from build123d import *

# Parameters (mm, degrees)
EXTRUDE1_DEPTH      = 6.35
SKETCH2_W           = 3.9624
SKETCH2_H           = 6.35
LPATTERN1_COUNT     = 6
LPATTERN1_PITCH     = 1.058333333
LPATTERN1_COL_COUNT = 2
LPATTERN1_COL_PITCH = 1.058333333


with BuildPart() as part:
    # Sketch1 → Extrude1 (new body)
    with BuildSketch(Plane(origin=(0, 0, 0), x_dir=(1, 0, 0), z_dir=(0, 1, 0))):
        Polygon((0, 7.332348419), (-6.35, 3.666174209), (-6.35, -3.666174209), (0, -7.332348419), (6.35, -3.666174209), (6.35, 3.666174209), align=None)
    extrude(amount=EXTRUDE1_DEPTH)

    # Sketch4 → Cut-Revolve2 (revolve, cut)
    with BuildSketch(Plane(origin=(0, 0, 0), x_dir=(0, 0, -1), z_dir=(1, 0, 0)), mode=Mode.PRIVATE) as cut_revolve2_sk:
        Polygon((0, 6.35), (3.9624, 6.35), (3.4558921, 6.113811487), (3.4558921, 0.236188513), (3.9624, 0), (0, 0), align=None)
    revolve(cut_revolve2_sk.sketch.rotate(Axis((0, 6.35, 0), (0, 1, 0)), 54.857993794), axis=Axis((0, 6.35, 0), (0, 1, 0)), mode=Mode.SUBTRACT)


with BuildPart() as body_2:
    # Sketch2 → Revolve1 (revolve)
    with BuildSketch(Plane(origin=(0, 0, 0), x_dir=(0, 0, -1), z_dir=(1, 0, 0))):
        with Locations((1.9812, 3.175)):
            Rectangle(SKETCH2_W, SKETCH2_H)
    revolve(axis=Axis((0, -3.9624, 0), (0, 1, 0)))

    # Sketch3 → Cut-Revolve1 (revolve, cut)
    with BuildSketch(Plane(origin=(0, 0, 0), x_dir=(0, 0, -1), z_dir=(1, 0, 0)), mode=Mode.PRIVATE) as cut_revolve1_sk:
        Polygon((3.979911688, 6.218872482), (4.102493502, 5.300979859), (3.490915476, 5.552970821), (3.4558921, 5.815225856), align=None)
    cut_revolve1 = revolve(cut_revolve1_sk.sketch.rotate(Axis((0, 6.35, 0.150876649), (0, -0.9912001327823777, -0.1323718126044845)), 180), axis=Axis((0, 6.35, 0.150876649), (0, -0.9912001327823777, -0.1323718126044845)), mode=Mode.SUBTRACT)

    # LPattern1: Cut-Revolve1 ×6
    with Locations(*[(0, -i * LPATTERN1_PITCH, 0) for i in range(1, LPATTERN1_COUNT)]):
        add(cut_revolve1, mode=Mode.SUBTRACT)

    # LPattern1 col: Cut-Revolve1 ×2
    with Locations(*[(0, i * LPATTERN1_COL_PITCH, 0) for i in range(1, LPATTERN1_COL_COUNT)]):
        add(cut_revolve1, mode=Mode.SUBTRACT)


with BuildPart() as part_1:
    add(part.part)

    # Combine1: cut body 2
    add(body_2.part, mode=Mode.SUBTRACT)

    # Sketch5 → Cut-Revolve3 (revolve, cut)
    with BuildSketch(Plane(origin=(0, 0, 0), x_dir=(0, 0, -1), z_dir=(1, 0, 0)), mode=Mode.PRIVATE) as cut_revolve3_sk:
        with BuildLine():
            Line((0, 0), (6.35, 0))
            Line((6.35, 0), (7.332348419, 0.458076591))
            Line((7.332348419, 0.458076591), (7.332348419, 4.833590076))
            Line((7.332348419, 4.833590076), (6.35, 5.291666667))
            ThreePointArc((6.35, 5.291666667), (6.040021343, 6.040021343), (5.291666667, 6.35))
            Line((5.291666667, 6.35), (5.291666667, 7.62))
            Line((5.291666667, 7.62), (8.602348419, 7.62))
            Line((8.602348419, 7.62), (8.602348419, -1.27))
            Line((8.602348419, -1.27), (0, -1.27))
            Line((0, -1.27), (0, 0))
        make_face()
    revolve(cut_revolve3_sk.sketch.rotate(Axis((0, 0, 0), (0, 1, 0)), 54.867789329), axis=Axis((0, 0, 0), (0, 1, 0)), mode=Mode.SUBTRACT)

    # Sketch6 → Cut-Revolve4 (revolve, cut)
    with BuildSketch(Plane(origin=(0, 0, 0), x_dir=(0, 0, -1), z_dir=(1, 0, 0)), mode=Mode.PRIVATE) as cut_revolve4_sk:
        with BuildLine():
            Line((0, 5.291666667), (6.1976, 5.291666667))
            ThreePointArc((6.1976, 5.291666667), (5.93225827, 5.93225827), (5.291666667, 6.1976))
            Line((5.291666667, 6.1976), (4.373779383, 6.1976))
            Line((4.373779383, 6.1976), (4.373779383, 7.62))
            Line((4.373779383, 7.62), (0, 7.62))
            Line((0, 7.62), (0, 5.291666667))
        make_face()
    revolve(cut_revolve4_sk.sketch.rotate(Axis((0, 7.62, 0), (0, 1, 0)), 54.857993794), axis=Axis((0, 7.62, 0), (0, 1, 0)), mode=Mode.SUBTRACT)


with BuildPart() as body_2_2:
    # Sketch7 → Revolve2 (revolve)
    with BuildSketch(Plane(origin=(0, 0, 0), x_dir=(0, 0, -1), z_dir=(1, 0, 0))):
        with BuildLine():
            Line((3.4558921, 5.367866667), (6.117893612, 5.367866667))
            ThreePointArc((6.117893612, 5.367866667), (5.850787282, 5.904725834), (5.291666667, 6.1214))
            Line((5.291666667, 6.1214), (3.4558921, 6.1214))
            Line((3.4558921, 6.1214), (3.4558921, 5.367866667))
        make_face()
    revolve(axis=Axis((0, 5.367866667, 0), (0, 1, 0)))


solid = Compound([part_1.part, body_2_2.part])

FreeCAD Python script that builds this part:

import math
import FreeCAD as App
import Part
import Sketcher
Q = App.Units.Quantity


def add_polygon(sketch, points):
    """Adds a closed chain of lines whose ends are joined by coincident constraints."""
    first, n = sketch.GeometryCount, len(points)
    for a, b in zip(points, points[1:] + points[:1]):
        sketch.addGeometry(Part.LineSegment(App.Vector(*a, 0), App.Vector(*b, 0)), False)
    for i in range(n):
        sketch.addConstraint(Sketcher.Constraint("Coincident", first + i, 2, first + (i + 1) % n, 1))

doc = App.newDocument("Part")
body = doc.addObject("PartDesign::Body", "Body")

# Sketch on XZ plane
sketch1 = body.newObject("Sketcher::SketchObject", "Sketch")
sketch1.AttachmentSupport = (doc.getObject("XZ_Plane"), [""])
sketch1.MapMode = "FlatFace"
add_polygon(sketch1, [(0, -7.332348), (-6.35, -3.666174), (-6.35, 3.666174), (0, 7.332348), (6.35, 3.666174), (6.35, -3.666174)])  # lines 0-5
sketch1.addConstraint(Sketcher.Constraint("Vertical", 1))
sketch1.addConstraint(Sketcher.Constraint("Vertical", 4))
sketch1.addConstraint(Sketcher.Constraint("Symmetric", 0, 2, 3, 2, -1, 1))
sketch1.addConstraint(Sketcher.Constraint("Symmetric", 2, 2, 5, 2, -1, 1))
sketch1.addConstraint(Sketcher.Constraint("PointOnObject", 2, 2, -2))
sketch1.addConstraint(Sketcher.Constraint("Parallel", 2, 5))
sketch1.addConstraint(Sketcher.Constraint("Horizontal", 1, 2, 3, 2))
sketch1.addConstraint(Sketcher.Constraint("Angle", 0, Q("150 deg")))
sketch1.addConstraint(Sketcher.Constraint("DistanceX", 1, 2, 3, 2, Q("0.5 in")))
sketch1.addConstraint(Sketcher.Constraint("DistanceY", 1, 1, 1, 2, 7.332348))
pad1 = body.newObject("PartDesign::Pad", "Pad")
pad1.Profile = sketch1
pad1.Length = Q("0.25 in")
pad1.Reversed = True

# Sketch on YZ plane
sketch2 = body.newObject("Sketcher::SketchObject", "Sketch001")
sketch2.AttachmentSupport = (doc.getObject("YZ_Plane"), [""])
sketch2.MapMode = "FlatFace"
add_polygon(sketch2, [(6.35, -3.9624), (6.35, 0), (0, 0), (0, -3.9624), (0.236189, -3.455892), (6.113811, -3.455892)])  # lines 0-5
sketch2.addConstraint(Sketcher.Constraint("Vertical", 0))
sketch2.addConstraint(Sketcher.Constraint("Horizontal", 1))
sketch2.addConstraint(Sketcher.Constraint("Vertical", 2))
sketch2.addConstraint(Sketcher.Constraint("Horizontal", 4))
sketch2.addConstraint(Sketcher.Constraint("Coincident", 1, 2, -1, 1))
sketch2.addConstraint(Sketcher.Constraint("Horizontal", 2, 2, 5, 2))
sketch2.addConstraint(Sketcher.Constraint("Equal", 3, 5))
sketch2.addConstraint(Sketcher.Constraint("Angle", 3, Q("65 deg")))
sketch2.addConstraint(Sketcher.Constraint("DistanceX", 1, 2, 1, 1, Q("0.25 in")))
sketch2.addConstraint(Sketcher.Constraint("DistanceY", 0, 1, 0, 2, Q("0.156 in")))
sketch2.addConstraint(Sketcher.Constraint("Distance", 3, 0.55887))
groove = body.newObject("PartDesign::Groove", "Groove")
groove.Profile = sketch2
groove.ReferenceAxis = (sketch2, ["H_Axis"])
groove.Angle = 360
body2 = doc.addObject("PartDesign::Body", "Body001")

# Sketch on YZ plane
sketch3 = body2.newObject("Sketcher::SketchObject", "Sketch002")
sketch3.AttachmentSupport = (doc.getObject("YZ_Plane001"), [""])
sketch3.MapMode = "FlatFace"
add_polygon(sketch3, [(6.35, 0), (0, 0), (0, -3.9624), (6.35, -3.9624)])  # lines 0-3
sketch3.addConstraint(Sketcher.Constraint("Horizontal", 0))
sketch3.addConstraint(Sketcher.Constraint("Vertical", 1))
sketch3.addConstraint(Sketcher.Constraint("Horizontal", 2))
sketch3.addConstraint(Sketcher.Constraint("Vertical", 3))
sketch3.addConstraint(Sketcher.Constraint("Coincident", 0, 2, -1, 1))
sketch3.addConstraint(Sketcher.Constraint("DistanceX", 0, 2, 0, 1, Q("0.25 in")))
sketch3.addConstraint(Sketcher.Constraint("DistanceY", 1, 2, 1, 1, Q("0.156 in")))
revolution = body2.newObject("PartDesign::Revolution", "Revolution")
revolution.Profile = sketch3
revolution.ReferenceAxis = (sketch3, ["H_Axis"])
revolution.Angle = 360

# Sketch on YZ plane
sketch4 = body2.newObject("Sketcher::SketchObject", "Sketch003")
sketch4.AttachmentSupport = (doc.getObject("YZ_Plane001"), [""])
sketch4.MapMode = "FlatFace"
add_polygon(sketch4, [(5.30098, -4.102494), (6.218872, -3.979912), (5.815226, -3.455892), (5.552971, -3.490915)])  # lines 0-3
sketch4.addGeometry(Part.LineSegment(App.Vector(5.679182, 0.061291, 0), App.Vector(4.761289, -0.061291, 0)), True)  # axis
sketch4.addConstraint(Sketcher.Constraint("Parallel", 0, 2))
sketch4.addConstraint(Sketcher.Constraint("Parallel", 2, 4))
sketch4.addConstraint(Sketcher.Constraint("Equal", 1, 3))
sketch4.addConstraint(Sketcher.Constraint("Equal", 0, 4))
sketch4.addConstraint(Sketcher.Constraint("DistanceX", -1, 1, 3, 2, Q("0.2087 in")))
sketch4.addConstraint(Sketcher.Constraint("DistanceX", 2, 2, 0, 2, 0.665902))
sketch4.addConstraint(Sketcher.Constraint("DistanceY", 3, 2, 1, 2, 0.646601))
sketch4.addConstraint(Sketcher.Constraint("DistanceY", 1, 2, 4, 2, 3.394601))
sketch4.addConstraint(Sketcher.Constraint("Distance", 0, 0.926042))
sketch4.addConstraint(Sketcher.Constraint("Distance", 1, 0.661458))
sketch4.addConstraint(Sketcher.Constraint("DistanceY", 0, 2, -1, 1, 3.979912))
sketch4.addConstraint(Sketcher.Constraint("DistanceX", -1, 1, 4, 1, 5.679182))
groove2 = body2.newObject("PartDesign::Groove", "Groove001")
groove2.Profile = sketch4
groove2.ReferenceAxis = (sketch4, ["Axis0"])
groove2.Angle = 360
doc.recompute()

linearpattern = body2.newObject("PartDesign::LinearPattern", "LinearPattern")
linearpattern.Originals = [groove2]
linearpattern.Direction = (doc.getObject("Y_Axis001"), [""])
linearpattern.Mode = "offset"
linearpattern.Offset = 1.058333
linearpattern.Occurrences = 6
linearpattern.Reversed = True
body2.Tip = linearpattern
doc.recompute()

linearpattern2 = body2.newObject("PartDesign::LinearPattern", "LinearPattern001")
linearpattern2.Originals = [groove2]
linearpattern2.Direction = (doc.getObject("Y_Axis001"), [""])
linearpattern2.Mode = "offset"
linearpattern2.Offset = 1.058333
linearpattern2.Occurrences = 2
body2.Tip = linearpattern2
doc.recompute()

boolean = body.newObject("PartDesign::Boolean", "Boolean")
boolean.Type = "Cut"
boolean.addObjects([body2])

# Sketch on YZ plane
sketch5 = body.newObject("Sketcher::SketchObject", "Sketch004")
sketch5.AttachmentSupport = (doc.getObject("YZ_Plane"), [""])
sketch5.MapMode = "FlatFace"
sketch5.addGeometry(Part.LineSegment(App.Vector(0, -6.35, 0), App.Vector(0, 0, 0)), False)
sketch5.addGeometry(Part.LineSegment(App.Vector(0, 0, 0), App.Vector(-1.27, 0, 0)), False)
sketch5.addGeometry(Part.LineSegment(App.Vector(-1.27, 0, 0), App.Vector(-1.27, -8.602348, 0)), False)
sketch5.addGeometry(Part.LineSegment(App.Vector(-1.27, -8.602348, 0), App.Vector(7.62, -8.602348, 0)), False)
sketch5.addGeometry(Part.LineSegment(App.Vector(7.62, -8.602348, 0), App.Vector(7.62, -5.291667, 0)), False)
sketch5.addGeometry(Part.LineSegment(App.Vector(7.62, -5.291667, 0), App.Vector(6.35, -5.291667, 0)), False)
sketch5.addGeometry(Part.ArcOfCircle(Part.Circle(App.Vector(5.291667, -5.291667, 0), App.Vector(0, 0, 1), 1.058333), math.radians(-90), math.radians(0)), False)
sketch5.addGeometry(Part.LineSegment(App.Vector(5.291667, -6.35, 0), App.Vector(4.83359, -7.332348, 0)), False)
sketch5.addGeometry(Part.LineSegment(App.Vector(4.83359, -7.332348, 0), App.Vector(0.458077, -7.332348, 0)), False)
sketch5.addGeometry(Part.LineSegment(App.Vector(0.458077, -7.332348, 0), App.Vector(0, -6.35, 0)), False)
sketch5.addConstraint(Sketcher.Constraint("Coincident", 0, 2, 1, 1))
sketch5.addConstraint(Sketcher.Constraint("Coincident", 1, 2, 2, 1))
sketch5.addConstraint(Sketcher.Constraint("Coincident", 2, 2, 3, 1))
sketch5.addConstraint(Sketcher.Constraint("Coincident", 3, 2, 4, 1))
sketch5.addConstraint(Sketcher.Constraint("Coincident", 4, 2, 5, 1))
sketch5.addConstraint(Sketcher.Constraint("Coincident", 5, 2, 6, 2))
sketch5.addConstraint(Sketcher.Constraint("Coincident", 6, 1, 7, 1))
sketch5.addConstraint(Sketcher.Constraint("Coincident", 7, 2, 8, 1))
sketch5.addConstraint(Sketcher.Constraint("Coincident", 8, 2, 9, 1))
sketch5.addConstraint(Sketcher.Constraint("Coincident", 9, 2, 0, 1))
sketch5.addConstraint(Sketcher.Constraint("Vertical", 0))
sketch5.addConstraint(Sketcher.Constraint("Horizontal", 1))
sketch5.addConstraint(Sketcher.Constraint("Vertical", 2))
sketch5.addConstraint(Sketcher.Constraint("Horizontal", 3))
sketch5.addConstraint(Sketcher.Constraint("Vertical", 4))
sketch5.addConstraint(Sketcher.Constraint("Horizontal", 5))
sketch5.addConstraint(Sketcher.Constraint("Horizontal", 8))
sketch5.addConstraint(Sketcher.Constraint("Coincident", 0, 2, -1, 1))
sketch5.addConstraint(Sketcher.Constraint("Horizontal", 6, 3, 4, 2))
sketch5.addConstraint(Sketcher.Constraint("Horizontal", 6, 1, 9, 2))
sketch5.addConstraint(Sketcher.Constraint("Equal", 1, 5))
sketch5.addConstraint(Sketcher.Constraint("Equal", 7, 9))
sketch5.addConstraint(Sketcher.Constraint("Angle", 7, Q("-115 deg")))
sketch5.addConstraint(Sketcher.Constraint("DistanceX", 1, 2, 1, 1, Q("0.05 in")))
sketch5.addConstraint(Sketcher.Constraint("DistanceX", 3, 1, 3, 2, Q("0.35 in")))
sketch5.addConstraint(Sketcher.Constraint("DistanceY", 0, 1, 0, 2, Q("0.25 in")))
sketch5.addConstraint(Sketcher.Constraint("DistanceY", 3, 2, 7, 2, Q("0.05 in")))
sketch5.addConstraint(Sketcher.Constraint("Radius", 6, 1.058333))
sketch5.addConstraint(Sketcher.Constraint("Distance", 7, 1.083902))
sketch5.addConstraint(Sketcher.Constraint("DistanceX", 8, 2, 8, 1, 4.375513))
groove3 = body.newObject("PartDesign::Groove", "Groove002")
groove3.Profile = sketch5
groove3.ReferenceAxis = (sketch5, ["H_Axis"])
groove3.Angle = 360

# Sketch on YZ plane
sketch6 = body.newObject("Sketcher::SketchObject", "Sketch005")
sketch6.AttachmentSupport = (doc.getObject("YZ_Plane"), [""])
sketch6.MapMode = "FlatFace"
sketch6.addGeometry(Part.LineSegment(App.Vector(5.291667, 0, 0), App.Vector(5.291667, -6.1976, 0)), False)
sketch6.addGeometry(Part.ArcOfCircle(Part.Circle(App.Vector(5.291667, -5.291667, 0), App.Vector(0, 0, 1), 0.905933), math.radians(-90), math.radians(0)), False)
sketch6.addGeometry(Part.LineSegment(App.Vector(6.1976, -5.291667, 0), App.Vector(6.1976, -4.373779, 0)), False)
sketch6.addGeometry(Part.LineSegment(App.Vector(6.1976, -4.373779, 0), App.Vector(7.62, -4.373779, 0)), False)
sketch6.addGeometry(Part.LineSegment(App.Vector(7.62, -4.373779, 0), App.Vector(7.62, 0, 0)), False)
sketch6.addGeometry(Part.LineSegment(App.Vector(7.62, 0, 0), App.Vector(5.291667, 0, 0)), False)
sketch6.addConstraint(Sketcher.Constraint("Coincident", 0, 2, 1, 1))
sketch6.addConstraint(Sketcher.Constraint("Tangent", 1, 2, 2, 1))
sketch6.addConstraint(Sketcher.Constraint("Coincident", 2, 2, 3, 1))
sketch6.addConstraint(Sketcher.Constraint("Coincident", 3, 2, 4, 1))
sketch6.addConstraint(Sketcher.Constraint("Coincident", 4, 2, 5, 1))
sketch6.addConstraint(Sketcher.Constraint("Coincident", 5, 2, 0, 1))
sketch6.addConstraint(Sketcher.Constraint("Vertical", 0))
sketch6.addConstraint(Sketcher.Constraint("Vertical", 2))
sketch6.addConstraint(Sketcher.Constraint("Horizontal", 3))
sketch6.addConstraint(Sketcher.Constraint("Vertical", 4))
sketch6.addConstraint(Sketcher.Constraint("Horizontal", 5))
sketch6.addConstraint(Sketcher.Constraint("PointOnObject", 4, 2, -1))
sketch6.addConstraint(Sketcher.Constraint("Vertical", 1, 3, 0, 2))
sketch6.addConstraint(Sketcher.Constraint("DistanceX", -1, 1, 3, 2, Q("0.3 in")))
sketch6.addConstraint(Sketcher.Constraint("DistanceX", 3, 1, 3, 2, Q("0.056 in")))
sketch6.addConstraint(Sketcher.Constraint("DistanceY", 0, 2, 0, 1, Q("0.244 in")))
sketch6.addConstraint(Sketcher.Constraint("Radius", 1, 0.905933))
sketch6.addConstraint(Sketcher.Constraint("DistanceY", 4, 1, 4, 2, 4.373779))
groove4 = body.newObject("PartDesign::Groove", "Groove003")
groove4.Profile = sketch6
groove4.ReferenceAxis = (sketch6, ["H_Axis"])
groove4.Angle = 360
body3 = doc.addObject("PartDesign::Body", "Body002")

# Sketch on YZ plane
sketch7 = body3.newObject("Sketcher::SketchObject", "Sketch006")
sketch7.AttachmentSupport = (doc.getObject("YZ_Plane002"), [""])
sketch7.MapMode = "FlatFace"
sketch7.addGeometry(Part.LineSegment(App.Vector(5.367867, -3.455892, 0), App.Vector(5.367867, -6.117894, 0)), False)
sketch7.addGeometry(Part.ArcOfCircle(Part.Circle(App.Vector(5.291667, -5.291667, 0), App.Vector(0, 0, 1), 0.829733), math.radians(-84.730718), math.radians(0)), False)
sketch7.addGeometry(Part.LineSegment(App.Vector(6.1214, -5.291667, 0), App.Vector(6.1214, -3.455892, 0)), False)
sketch7.addGeometry(Part.LineSegment(App.Vector(6.1214, -3.455892, 0), App.Vector(5.367867, -3.455892, 0)), False)
sketch7.addConstraint(Sketcher.Constraint("Coincident", 0, 2, 1, 1))
sketch7.addConstraint(Sketcher.Constraint("Tangent", 1, 2, 2, 1))
sketch7.addConstraint(Sketcher.Constraint("Coincident", 2, 2, 3, 1))
sketch7.addConstraint(Sketcher.Constraint("Coincident", 3, 2, 0, 1))
sketch7.addConstraint(Sketcher.Constraint("Vertical", 0))
sketch7.addConstraint(Sketcher.Constraint("Vertical", 2))
sketch7.addConstraint(Sketcher.Constraint("Horizontal", 3))
sketch7.addConstraint(Sketcher.Constraint("DistanceX", -1, 1, 1, 2, Q("0.241 in")))
sketch7.addConstraint(Sketcher.Constraint("DistanceX", 1, 3, 0, 2, Q("0.003 in")))
sketch7.addConstraint(Sketcher.Constraint("DistanceY", 0, 2, 0, 1, 2.662002))
sketch7.addConstraint(Sketcher.Constraint("Radius", 1, 0.829733))
sketch7.addConstraint(Sketcher.Constraint("DistanceY", 1, 3, -1, 1, 5.291667))
revolution2 = body3.newObject("PartDesign::Revolution", "Revolution001")
revolution2.Profile = sketch7
revolution2.ReferenceAxis = (sketch7, ["H_Axis"])
revolution2.Angle = 360

doc.recompute()
